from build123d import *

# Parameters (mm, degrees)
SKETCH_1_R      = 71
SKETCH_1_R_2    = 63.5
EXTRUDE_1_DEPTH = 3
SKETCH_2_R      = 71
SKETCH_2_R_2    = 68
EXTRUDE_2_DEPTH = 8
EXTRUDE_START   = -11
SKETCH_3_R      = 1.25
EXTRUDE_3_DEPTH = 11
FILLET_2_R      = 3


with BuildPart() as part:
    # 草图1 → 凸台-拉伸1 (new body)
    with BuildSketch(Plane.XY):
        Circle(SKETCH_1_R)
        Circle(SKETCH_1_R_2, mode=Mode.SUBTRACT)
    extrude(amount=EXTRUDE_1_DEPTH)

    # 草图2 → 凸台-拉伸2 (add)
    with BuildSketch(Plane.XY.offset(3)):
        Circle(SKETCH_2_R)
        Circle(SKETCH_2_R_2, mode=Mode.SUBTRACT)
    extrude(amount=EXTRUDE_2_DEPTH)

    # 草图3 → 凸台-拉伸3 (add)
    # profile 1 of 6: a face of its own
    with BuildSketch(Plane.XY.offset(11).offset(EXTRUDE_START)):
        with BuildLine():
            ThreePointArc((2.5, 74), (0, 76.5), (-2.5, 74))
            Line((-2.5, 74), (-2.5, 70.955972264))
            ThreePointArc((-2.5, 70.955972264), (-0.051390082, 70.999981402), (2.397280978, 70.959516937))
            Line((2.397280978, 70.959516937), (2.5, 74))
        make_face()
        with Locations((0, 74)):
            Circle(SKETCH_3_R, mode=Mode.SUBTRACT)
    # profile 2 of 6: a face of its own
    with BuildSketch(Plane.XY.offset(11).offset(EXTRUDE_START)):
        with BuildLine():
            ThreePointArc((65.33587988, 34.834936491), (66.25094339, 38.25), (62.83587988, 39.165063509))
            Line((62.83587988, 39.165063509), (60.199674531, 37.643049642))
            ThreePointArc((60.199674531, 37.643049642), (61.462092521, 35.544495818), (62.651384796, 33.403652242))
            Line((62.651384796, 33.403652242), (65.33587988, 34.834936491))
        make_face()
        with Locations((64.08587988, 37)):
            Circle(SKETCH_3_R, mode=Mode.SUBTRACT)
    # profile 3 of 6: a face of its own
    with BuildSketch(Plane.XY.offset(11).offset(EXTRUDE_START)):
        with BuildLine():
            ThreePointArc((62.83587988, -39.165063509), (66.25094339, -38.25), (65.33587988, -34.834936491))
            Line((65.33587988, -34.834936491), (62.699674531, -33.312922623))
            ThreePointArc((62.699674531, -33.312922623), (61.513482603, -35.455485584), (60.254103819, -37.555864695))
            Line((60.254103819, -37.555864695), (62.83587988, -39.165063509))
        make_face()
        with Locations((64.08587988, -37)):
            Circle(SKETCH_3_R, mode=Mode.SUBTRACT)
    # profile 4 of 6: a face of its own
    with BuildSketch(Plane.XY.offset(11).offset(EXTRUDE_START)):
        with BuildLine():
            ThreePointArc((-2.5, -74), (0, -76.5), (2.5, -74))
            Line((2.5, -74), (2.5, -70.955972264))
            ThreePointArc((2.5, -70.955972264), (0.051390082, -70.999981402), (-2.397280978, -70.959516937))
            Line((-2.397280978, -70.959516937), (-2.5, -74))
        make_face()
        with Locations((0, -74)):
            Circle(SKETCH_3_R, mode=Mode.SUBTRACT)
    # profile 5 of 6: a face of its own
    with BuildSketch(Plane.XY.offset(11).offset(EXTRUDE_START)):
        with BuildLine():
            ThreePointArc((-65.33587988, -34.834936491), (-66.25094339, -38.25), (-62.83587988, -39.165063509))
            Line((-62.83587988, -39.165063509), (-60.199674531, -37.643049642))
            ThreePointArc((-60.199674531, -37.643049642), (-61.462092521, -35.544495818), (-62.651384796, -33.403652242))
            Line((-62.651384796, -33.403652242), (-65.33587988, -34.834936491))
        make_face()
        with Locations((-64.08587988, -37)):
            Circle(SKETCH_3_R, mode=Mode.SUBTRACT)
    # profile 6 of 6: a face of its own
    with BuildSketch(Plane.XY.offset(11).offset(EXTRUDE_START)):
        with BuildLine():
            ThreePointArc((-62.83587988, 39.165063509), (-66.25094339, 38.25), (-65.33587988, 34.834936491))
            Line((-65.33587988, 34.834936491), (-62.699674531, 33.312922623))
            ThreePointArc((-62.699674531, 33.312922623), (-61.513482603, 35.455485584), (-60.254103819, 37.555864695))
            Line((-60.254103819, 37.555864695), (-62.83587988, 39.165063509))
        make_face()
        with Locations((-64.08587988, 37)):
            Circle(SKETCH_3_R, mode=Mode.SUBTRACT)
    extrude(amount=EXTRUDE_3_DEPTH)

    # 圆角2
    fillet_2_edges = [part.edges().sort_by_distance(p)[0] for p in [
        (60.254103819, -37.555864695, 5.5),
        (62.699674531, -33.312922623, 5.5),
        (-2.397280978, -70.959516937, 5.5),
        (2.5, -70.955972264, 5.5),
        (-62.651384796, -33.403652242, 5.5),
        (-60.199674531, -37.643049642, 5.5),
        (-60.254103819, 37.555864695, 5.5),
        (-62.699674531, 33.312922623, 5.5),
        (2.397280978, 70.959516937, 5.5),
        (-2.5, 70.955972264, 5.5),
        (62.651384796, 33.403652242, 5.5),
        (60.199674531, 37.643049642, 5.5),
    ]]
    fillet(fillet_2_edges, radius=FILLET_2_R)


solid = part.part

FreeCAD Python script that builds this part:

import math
import FreeCAD as App
import Part
import Sketcher

V = App.Vector
Q = App.Units.Quantity


def edges_at(feature, points):
    """Names of the edges that pass closest to the given points."""
    edges = feature.Shape.Edges
    near = lambda p: min(range(len(edges)), key=lambda i: edges[i].distToShape(Part.Vertex(*p))[0])
    return sorted({f"Edge{near(p) + 1}" for p in points})

doc = App.newDocument("Part")
body = doc.addObject("PartDesign::Body", "Body")

# Sketch on XY plane
sketch1 = body.newObject("Sketcher::SketchObject", "Sketch")
sketch1.AttachmentSupport = (doc.getObject("XY_Plane"), [""])
sketch1.MapMode = "FlatFace"
sketch1.addGeometry(Part.Circle(V(0, 0, 0), V(0, 0, 1), 71), False)
sketch1.addGeometry(Part.Circle(V(0, 0, 0), V(0, 0, 1), 63.5), False)
sketch1.addConstraint(Sketcher.Constraint("Coincident", 0, 3, -1, 1))
sketch1.addConstraint(Sketcher.Constraint("Coincident", 1, 3, -1, 1))
sketch1.addConstraint(Sketcher.Constraint("Diameter", 0, 142.0))
sketch1.addConstraint(Sketcher.Constraint("Diameter", 1, 127.0))
pad1 = body.newObject("PartDesign::Pad", "Pad")
pad1.Profile = sketch1
pad1.Length = 3

# Sketch on XY plane
sketch2 = body.newObject("Sketcher::SketchObject", "Sketch001")
sketch2.AttachmentSupport = (doc.getObject("XY_Plane"), [""])
sketch2.MapMode = "FlatFace"
sketch2.AttachmentOffset = App.Placement(V(0, 0, 3), App.Rotation())
sketch2.addGeometry(Part.Circle(V(0, 0, 0), V(0, 0, 1), 71), False)
sketch2.addGeometry(Part.Circle(V(0, 0, 0), V(0, 0, 1), 68), False)
sketch2.addConstraint(Sketcher.Constraint("Coincident", 0, 3, -1, 1))
sketch2.addConstraint(Sketcher.Constraint("Coincident", 1, 3, -1, 1))
sketch2.addConstraint(Sketcher.Constraint("Diameter", 0, 142.0))
sketch2.addConstraint(Sketcher.Constraint("Diameter", 1, 136.0))
pad2 = body.newObject("PartDesign::Pad", "Pad001")
pad2.Profile = sketch2
pad2.Length = 8

# Sketch on XY plane
sketch3 = body.newObject("Sketcher::SketchObject", "Sketch002")
sketch3.AttachmentSupport = (doc.getObject("XY_Plane"), [""])
sketch3.MapMode = "FlatFace"
sketch3.addGeometry(Part.ArcOfCircle(Part.Circle(V(0, 74, 0), V(0, 0, 1), 2.5), math.radians(0), math.radians(180)), False)
sketch3.addGeometry(Part.LineSegment(V(-2.5, 74, 0), V(-2.5, 70.955972, 0)), False)
sketch3.addGeometry(Part.ArcOfCircle(Part.Circle(V(0, 0.000001, 0), V(0, 0, 1), 70.999999), math.radians(88.065068), math.radians(92.017874)), False)
sketch3.addGeometry(Part.LineSegment(V(2.397281, 70.959517, 0), V(2.5, 74, 0)), False)
sketch3.addGeometry(Part.Circle(V(0, 74, 0), V(0, 0, 1), 1.25), False)
sketch3.addGeometry(Part.ArcOfCircle(Part.Circle(V(64.08588, 37, 0), V(0, 0, 1), 2.5), math.radians(-60), math.radians(120)), False)
sketch3.addGeometry(Part.LineSegment(V(62.83588, 39.165064, 0), V(60.199675, 37.64305, 0)), False)
sketch3.addGeometry(Part.ArcOfCircle(Part.Circle(V(0, 0, 0), V(0, 0, 1), 71), math.radians(28.065068), math.radians(32.017874)), False)
sketch3.addGeometry(Part.LineSegment(V(62.651385, 33.403652, 0), V(65.33588, 34.834936, 0)), False)
sketch3.addGeometry(Part.Circle(V(64.08588, 37, 0), V(0, 0, 1), 1.25), False)
sketch3.addGeometry(Part.ArcOfCircle(Part.Circle(V(64.08588, -37, 0), V(0, 0, 1), 2.5), math.radians(-120), math.radians(60)), False)
sketch3.addGeometry(Part.LineSegment(V(65.33588, -34.834936, 0), V(62.699675, -33.312923, 0)), False)
sketch3.addGeometry(Part.ArcOfCircle(Part.Circle(V(-0.000001, 0, 0), V(0, 0, 1), 71.000001), math.radians(-31.934932), math.radians(-27.982126)), False)
sketch3.addGeometry(Part.LineSegment(V(60.254104, -37.555865, 0), V(62.83588, -39.165064, 0)), False)
sketch3.addGeometry(Part.Circle(V(64.08588, -37, 0), V(0, 0, 1), 1.25), False)
sketch3.addGeometry(Part.ArcOfCircle(Part.Circle(V(0, -74, 0), V(0, 0, 1), 2.5), math.radians(180), math.radians(360)), False)
sketch3.addGeometry(Part.LineSegment(V(2.5, -74, 0), V(2.5, -70.955972, 0)), False)
sketch3.addGeometry(Part.ArcOfCircle(Part.Circle(V(0, -0.000001, 0), V(0, 0, 1), 70.999999), math.radians(-91.934932), math.radians(-87.982126)), False)
sketch3.addGeometry(Part.LineSegment(V(-2.397281, -70.959517, 0), V(-2.5, -74, 0)), False)
sketch3.addGeometry(Part.Circle(V(0, -74, 0), V(0, 0, 1), 1.25), False)
sketch3.addGeometry(Part.ArcOfCircle(Part.Circle(V(-64.08588, -37, 0), V(0, 0, 1), 2.5), math.radians(120), math.radians(300)), False)
sketch3.addGeometry(Part.LineSegment(V(-62.83588, -39.165064, 0), V(-60.199675, -37.64305, 0)), False)
sketch3.addGeometry(Part.ArcOfCircle(Part.Circle(V(0, 0, 0), V(0, 0, 1), 71), math.radians(-151.934932), math.radians(-147.982126)), False)
sketch3.addGeometry(Part.LineSegment(V(-62.651385, -33.403652, 0), V(-65.33588, -34.834936, 0)), False)
sketch3.addGeometry(Part.Circle(V(-64.08588, -37, 0), V(0, 0, 1), 1.25), False)
sketch3.addGeometry(Part.ArcOfCircle(Part.Circle(V(-64.08588, 37, 0), V(0, 0, 1), 2.5), math.radians(60), math.radians(240)), False)
sketch3.addGeometry(Part.LineSegment(V(-65.33588, 34.834936, 0), V(-62.699675, 33.312923, 0)), False)
sketch3.addGeometry(Part.ArcOfCircle(Part.Circle(V(0.000001, 0, 0), V(0, 0, 1), 71.000001), math.radians(148.065068), math.radians(152.017874)), False)
sketch3.addGeometry(Part.LineSegment(V(-60.254104, 37.555865, 0), V(-62.83588, 39.165064, 0)), False)
sketch3.addGeometry(Part.Circle(V(-64.08588, 37, 0), V(0, 0, 1), 1.25), False)
sketch3.addConstraint(Sketcher.Constraint("Tangent", 0, 2, 1, 1))
sketch3.addConstraint(Sketcher.Constraint("Coincident", 1, 2, 2, 2))
sketch3.addConstraint(Sketcher.Constraint("Coincident", 2, 1, 3, 1))
sketch3.addConstraint(Sketcher.Constraint("Coincident", 3, 2, 0, 1))
sketch3.addConstraint(Sketcher.Constraint("Tangent", 5, 2, 6, 1))
sketch3.addConstraint(Sketcher.Constraint("Coincident", 6, 2, 7, 2))
sketch3.addConstraint(Sketcher.Constraint("Coincident", 7, 1, 8, 1))
sketch3.addConstraint(Sketcher.Constraint("Coincident", 8, 2, 5, 1))
sketch3.addConstraint(Sketcher.Constraint("Tangent", 10, 2, 11, 1))
sketch3.addConstraint(Sketcher.Constraint("Coincident", 11, 2, 12, 2))
sketch3.addConstraint(Sketcher.Constraint("Coincident", 12, 1, 13, 1))
sketch3.addConstraint(Sketcher.Constraint("Coincident", 13, 2, 10, 1))
sketch3.addConstraint(Sketcher.Constraint("Tangent", 15, 2, 16, 1))
sketch3.addConstraint(Sketcher.Constraint("Coincident", 16, 2, 17, 2))
sketch3.addConstraint(Sketcher.Constraint("Coincident", 17, 1, 18, 1))
sketch3.addConstraint(Sketcher.Constraint("Coincident", 18, 2, 15, 1))
sketch3.addConstraint(Sketcher.Constraint("Tangent", 20, 2, 21, 1))
sketch3.addConstraint(Sketcher.Constraint("Coincident", 21, 2, 22, 2))
sketch3.addConstraint(Sketcher.Constraint("Coincident", 22, 1, 23, 1))
sketch3.addConstraint(Sketcher.Constraint("Coincident", 23, 2, 20, 1))
sketch3.addConstraint(Sketcher.Constraint("Tangent", 25, 2, 26, 1))
sketch3.addConstraint(Sketcher.Constraint("Coincident", 26, 2, 27, 2))
sketch3.addConstraint(Sketcher.Constraint("Coincident", 27, 1, 28, 1))
sketch3.addConstraint(Sketcher.Constraint("Coincident", 28, 2, 25, 1))
sketch3.addConstraint(Sketcher.Constraint("Vertical", 1))
sketch3.addConstraint(Sketcher.Constraint("Vertical", 16))
sketch3.addConstraint(Sketcher.Constraint("Coincident", 2, 3, -1, 1))
sketch3.addConstraint(Sketcher.Constraint("Coincident", 7, 3, -1, 1))
sketch3.addConstraint(Sketcher.Constraint("Coincident", 12, 3, -1, 1))
sketch3.addConstraint(Sketcher.Constraint("Coincident", 17, 3, -1, 1))
sketch3.addConstraint(Sketcher.Constraint("Coincident", 22, 3, -1, 1))
sketch3.addConstraint(Sketcher.Constraint("Coincident", 27, 3, -1, 1))
sketch3.addConstraint(Sketcher.Constraint("Coincident", 4, 3, 0, 3))
sketch3.addConstraint(Sketcher.Constraint("Coincident", 9, 3, 5, 3))
sketch3.addConstraint(Sketcher.Constraint("Coincident", 14, 3, 10, 3))
sketch3.addConstraint(Sketcher.Constraint("Coincident", 19, 3, 15, 3))
sketch3.addConstraint(Sketcher.Constraint("Coincident", 24, 3, 20, 3))
sketch3.addConstraint(Sketcher.Constraint("Coincident", 29, 3, 25, 3))
sketch3.addConstraint(Sketcher.Constraint("Equal", 0, 5))
sketch3.addConstraint(Sketcher.Constraint("Equal", 2, 7))
sketch3.addConstraint(Sketcher.Constraint("Equal", 4, 9))
sketch3.addConstraint(Sketcher.Constraint("Equal", 5, 10))
sketch3.addConstraint(Sketcher.Constraint("Equal", 7, 12))
sketch3.addConstraint(Sketcher.Constraint("Equal", 9, 14))
sketch3.addConstraint(Sketcher.Constraint("Equal", 10, 15))
sketch3.addConstraint(Sketcher.Constraint("Equal", 12, 17))
sketch3.addConstraint(Sketcher.Constraint("Equal", 14, 19))
sketch3.addConstraint(Sketcher.Constraint("Equal", 15, 20))
sketch3.addConstraint(Sketcher.Constraint("Equal", 17, 22))
sketch3.addConstraint(Sketcher.Constraint("Equal", 19, 24))
sketch3.addConstraint(Sketcher.Constraint("Equal", 20, 25))
sketch3.addConstraint(Sketcher.Constraint("Equal", 22, 27))
sketch3.addConstraint(Sketcher.Constraint("Equal", 24, 29))
sketch3.addConstraint(Sketcher.Constraint("Symmetric", 0, 3, 15, 3, -1, 1))
sketch3.addConstraint(Sketcher.Constraint("Symmetric", 5, 3, 20, 3, -1, 1))
sketch3.addConstraint(Sketcher.Constraint("Symmetric", 10, 3, 25, 3, -1, 1))
sketch3.addConstraint(Sketcher.Constraint("Symmetric", 10, 3, 20, 3, -2))
sketch3.addConstraint(Sketcher.Constraint("Symmetric", 0, 2, 3, 2, -2))
sketch3.addConstraint(Sketcher.Constraint("Parallel", 3, 18))
sketch3.addConstraint(Sketcher.Constraint("Parallel", 6, 21))
sketch3.addConstraint(Sketcher.Constraint("Parallel", 8, 23))
sketch3.addConstraint(Sketcher.Constraint("Parallel", 11, 26))
sketch3.addConstraint(Sketcher.Constraint("Parallel", 13, 28))
sketch3.addConstraint(Sketcher.Constraint("Horizontal", 15, 2, 18, 2))
sketch3.addConstraint(Sketcher.Constraint("Horizontal", 13, 2, 20, 2))
sketch3.addConstraint(Sketcher.Constraint("Horizontal", 10, 2, 23, 2))
sketch3.addConstraint(Sketcher.Constraint("Horizontal", 8, 2, 25, 2))
sketch3.addConstraint(Sketcher.Constraint("Horizontal", 5, 2, 28, 2))
sketch3.addConstraint(Sketcher.Constraint("Equal", 3, 8))
sketch3.addConstraint(Sketcher.Constraint("Equal", 6, 11))
sketch3.addConstraint(Sketcher.Constraint("Radius", 2, 70.999999))
sketch3.addConstraint(Sketcher.Constraint("Diameter", 4, 2.5))
sketch3.addConstraint(Sketcher.Constraint("Radius", 0, 2.5))
sketch3.addConstraint(Sketcher.Constraint("Angle", 6, Q("-150 deg")))
sketch3.addConstraint(Sketcher.Constraint("Angle", 11, Q("150 deg")))
sketch3.addConstraint(Sketcher.Constraint("DistanceY", -1, 1, 0, 3, 74.0))
sketch3.addConstraint(Sketcher.Constraint("DistanceX", 2, 1, 9, 3, 61.688599))
sketch3.addConstraint(Sketcher.Constraint("DistanceY", 13, 2, 12, 1, 1.609199))
sketch3.addConstraint(Sketcher.Constraint("DistanceX", 6, 2, 7, 1, 2.45171))
pad3 = body.newObject("PartDesign::Pad", "Pad002")
pad3.Profile = sketch3
pad3.Length = 11
doc.recompute()

fillet = body.newObject("PartDesign::Fillet", "Fillet")
fillet.Base = (pad3, edges_at(pad3, [
    (60.254, -37.556, 5.5),
    (62.7, -33.313, 5.5),
    (-2.397, -70.96, 5.5),
    (2.5, -70.956, 5.5),
    (-62.651, -33.404, 5.5),
    (-60.2, -37.643, 5.5),
    (-60.254, 37.556, 5.5),
    (-62.7, 33.313, 5.5),
    (2.397, 70.96, 5.5),
    (-2.5, 70.956, 5.5),
    (62.651, 33.404, 5.5),
    (60.2, 37.643, 5.5),
]))
fillet.Radius = 3

doc.recompute()
